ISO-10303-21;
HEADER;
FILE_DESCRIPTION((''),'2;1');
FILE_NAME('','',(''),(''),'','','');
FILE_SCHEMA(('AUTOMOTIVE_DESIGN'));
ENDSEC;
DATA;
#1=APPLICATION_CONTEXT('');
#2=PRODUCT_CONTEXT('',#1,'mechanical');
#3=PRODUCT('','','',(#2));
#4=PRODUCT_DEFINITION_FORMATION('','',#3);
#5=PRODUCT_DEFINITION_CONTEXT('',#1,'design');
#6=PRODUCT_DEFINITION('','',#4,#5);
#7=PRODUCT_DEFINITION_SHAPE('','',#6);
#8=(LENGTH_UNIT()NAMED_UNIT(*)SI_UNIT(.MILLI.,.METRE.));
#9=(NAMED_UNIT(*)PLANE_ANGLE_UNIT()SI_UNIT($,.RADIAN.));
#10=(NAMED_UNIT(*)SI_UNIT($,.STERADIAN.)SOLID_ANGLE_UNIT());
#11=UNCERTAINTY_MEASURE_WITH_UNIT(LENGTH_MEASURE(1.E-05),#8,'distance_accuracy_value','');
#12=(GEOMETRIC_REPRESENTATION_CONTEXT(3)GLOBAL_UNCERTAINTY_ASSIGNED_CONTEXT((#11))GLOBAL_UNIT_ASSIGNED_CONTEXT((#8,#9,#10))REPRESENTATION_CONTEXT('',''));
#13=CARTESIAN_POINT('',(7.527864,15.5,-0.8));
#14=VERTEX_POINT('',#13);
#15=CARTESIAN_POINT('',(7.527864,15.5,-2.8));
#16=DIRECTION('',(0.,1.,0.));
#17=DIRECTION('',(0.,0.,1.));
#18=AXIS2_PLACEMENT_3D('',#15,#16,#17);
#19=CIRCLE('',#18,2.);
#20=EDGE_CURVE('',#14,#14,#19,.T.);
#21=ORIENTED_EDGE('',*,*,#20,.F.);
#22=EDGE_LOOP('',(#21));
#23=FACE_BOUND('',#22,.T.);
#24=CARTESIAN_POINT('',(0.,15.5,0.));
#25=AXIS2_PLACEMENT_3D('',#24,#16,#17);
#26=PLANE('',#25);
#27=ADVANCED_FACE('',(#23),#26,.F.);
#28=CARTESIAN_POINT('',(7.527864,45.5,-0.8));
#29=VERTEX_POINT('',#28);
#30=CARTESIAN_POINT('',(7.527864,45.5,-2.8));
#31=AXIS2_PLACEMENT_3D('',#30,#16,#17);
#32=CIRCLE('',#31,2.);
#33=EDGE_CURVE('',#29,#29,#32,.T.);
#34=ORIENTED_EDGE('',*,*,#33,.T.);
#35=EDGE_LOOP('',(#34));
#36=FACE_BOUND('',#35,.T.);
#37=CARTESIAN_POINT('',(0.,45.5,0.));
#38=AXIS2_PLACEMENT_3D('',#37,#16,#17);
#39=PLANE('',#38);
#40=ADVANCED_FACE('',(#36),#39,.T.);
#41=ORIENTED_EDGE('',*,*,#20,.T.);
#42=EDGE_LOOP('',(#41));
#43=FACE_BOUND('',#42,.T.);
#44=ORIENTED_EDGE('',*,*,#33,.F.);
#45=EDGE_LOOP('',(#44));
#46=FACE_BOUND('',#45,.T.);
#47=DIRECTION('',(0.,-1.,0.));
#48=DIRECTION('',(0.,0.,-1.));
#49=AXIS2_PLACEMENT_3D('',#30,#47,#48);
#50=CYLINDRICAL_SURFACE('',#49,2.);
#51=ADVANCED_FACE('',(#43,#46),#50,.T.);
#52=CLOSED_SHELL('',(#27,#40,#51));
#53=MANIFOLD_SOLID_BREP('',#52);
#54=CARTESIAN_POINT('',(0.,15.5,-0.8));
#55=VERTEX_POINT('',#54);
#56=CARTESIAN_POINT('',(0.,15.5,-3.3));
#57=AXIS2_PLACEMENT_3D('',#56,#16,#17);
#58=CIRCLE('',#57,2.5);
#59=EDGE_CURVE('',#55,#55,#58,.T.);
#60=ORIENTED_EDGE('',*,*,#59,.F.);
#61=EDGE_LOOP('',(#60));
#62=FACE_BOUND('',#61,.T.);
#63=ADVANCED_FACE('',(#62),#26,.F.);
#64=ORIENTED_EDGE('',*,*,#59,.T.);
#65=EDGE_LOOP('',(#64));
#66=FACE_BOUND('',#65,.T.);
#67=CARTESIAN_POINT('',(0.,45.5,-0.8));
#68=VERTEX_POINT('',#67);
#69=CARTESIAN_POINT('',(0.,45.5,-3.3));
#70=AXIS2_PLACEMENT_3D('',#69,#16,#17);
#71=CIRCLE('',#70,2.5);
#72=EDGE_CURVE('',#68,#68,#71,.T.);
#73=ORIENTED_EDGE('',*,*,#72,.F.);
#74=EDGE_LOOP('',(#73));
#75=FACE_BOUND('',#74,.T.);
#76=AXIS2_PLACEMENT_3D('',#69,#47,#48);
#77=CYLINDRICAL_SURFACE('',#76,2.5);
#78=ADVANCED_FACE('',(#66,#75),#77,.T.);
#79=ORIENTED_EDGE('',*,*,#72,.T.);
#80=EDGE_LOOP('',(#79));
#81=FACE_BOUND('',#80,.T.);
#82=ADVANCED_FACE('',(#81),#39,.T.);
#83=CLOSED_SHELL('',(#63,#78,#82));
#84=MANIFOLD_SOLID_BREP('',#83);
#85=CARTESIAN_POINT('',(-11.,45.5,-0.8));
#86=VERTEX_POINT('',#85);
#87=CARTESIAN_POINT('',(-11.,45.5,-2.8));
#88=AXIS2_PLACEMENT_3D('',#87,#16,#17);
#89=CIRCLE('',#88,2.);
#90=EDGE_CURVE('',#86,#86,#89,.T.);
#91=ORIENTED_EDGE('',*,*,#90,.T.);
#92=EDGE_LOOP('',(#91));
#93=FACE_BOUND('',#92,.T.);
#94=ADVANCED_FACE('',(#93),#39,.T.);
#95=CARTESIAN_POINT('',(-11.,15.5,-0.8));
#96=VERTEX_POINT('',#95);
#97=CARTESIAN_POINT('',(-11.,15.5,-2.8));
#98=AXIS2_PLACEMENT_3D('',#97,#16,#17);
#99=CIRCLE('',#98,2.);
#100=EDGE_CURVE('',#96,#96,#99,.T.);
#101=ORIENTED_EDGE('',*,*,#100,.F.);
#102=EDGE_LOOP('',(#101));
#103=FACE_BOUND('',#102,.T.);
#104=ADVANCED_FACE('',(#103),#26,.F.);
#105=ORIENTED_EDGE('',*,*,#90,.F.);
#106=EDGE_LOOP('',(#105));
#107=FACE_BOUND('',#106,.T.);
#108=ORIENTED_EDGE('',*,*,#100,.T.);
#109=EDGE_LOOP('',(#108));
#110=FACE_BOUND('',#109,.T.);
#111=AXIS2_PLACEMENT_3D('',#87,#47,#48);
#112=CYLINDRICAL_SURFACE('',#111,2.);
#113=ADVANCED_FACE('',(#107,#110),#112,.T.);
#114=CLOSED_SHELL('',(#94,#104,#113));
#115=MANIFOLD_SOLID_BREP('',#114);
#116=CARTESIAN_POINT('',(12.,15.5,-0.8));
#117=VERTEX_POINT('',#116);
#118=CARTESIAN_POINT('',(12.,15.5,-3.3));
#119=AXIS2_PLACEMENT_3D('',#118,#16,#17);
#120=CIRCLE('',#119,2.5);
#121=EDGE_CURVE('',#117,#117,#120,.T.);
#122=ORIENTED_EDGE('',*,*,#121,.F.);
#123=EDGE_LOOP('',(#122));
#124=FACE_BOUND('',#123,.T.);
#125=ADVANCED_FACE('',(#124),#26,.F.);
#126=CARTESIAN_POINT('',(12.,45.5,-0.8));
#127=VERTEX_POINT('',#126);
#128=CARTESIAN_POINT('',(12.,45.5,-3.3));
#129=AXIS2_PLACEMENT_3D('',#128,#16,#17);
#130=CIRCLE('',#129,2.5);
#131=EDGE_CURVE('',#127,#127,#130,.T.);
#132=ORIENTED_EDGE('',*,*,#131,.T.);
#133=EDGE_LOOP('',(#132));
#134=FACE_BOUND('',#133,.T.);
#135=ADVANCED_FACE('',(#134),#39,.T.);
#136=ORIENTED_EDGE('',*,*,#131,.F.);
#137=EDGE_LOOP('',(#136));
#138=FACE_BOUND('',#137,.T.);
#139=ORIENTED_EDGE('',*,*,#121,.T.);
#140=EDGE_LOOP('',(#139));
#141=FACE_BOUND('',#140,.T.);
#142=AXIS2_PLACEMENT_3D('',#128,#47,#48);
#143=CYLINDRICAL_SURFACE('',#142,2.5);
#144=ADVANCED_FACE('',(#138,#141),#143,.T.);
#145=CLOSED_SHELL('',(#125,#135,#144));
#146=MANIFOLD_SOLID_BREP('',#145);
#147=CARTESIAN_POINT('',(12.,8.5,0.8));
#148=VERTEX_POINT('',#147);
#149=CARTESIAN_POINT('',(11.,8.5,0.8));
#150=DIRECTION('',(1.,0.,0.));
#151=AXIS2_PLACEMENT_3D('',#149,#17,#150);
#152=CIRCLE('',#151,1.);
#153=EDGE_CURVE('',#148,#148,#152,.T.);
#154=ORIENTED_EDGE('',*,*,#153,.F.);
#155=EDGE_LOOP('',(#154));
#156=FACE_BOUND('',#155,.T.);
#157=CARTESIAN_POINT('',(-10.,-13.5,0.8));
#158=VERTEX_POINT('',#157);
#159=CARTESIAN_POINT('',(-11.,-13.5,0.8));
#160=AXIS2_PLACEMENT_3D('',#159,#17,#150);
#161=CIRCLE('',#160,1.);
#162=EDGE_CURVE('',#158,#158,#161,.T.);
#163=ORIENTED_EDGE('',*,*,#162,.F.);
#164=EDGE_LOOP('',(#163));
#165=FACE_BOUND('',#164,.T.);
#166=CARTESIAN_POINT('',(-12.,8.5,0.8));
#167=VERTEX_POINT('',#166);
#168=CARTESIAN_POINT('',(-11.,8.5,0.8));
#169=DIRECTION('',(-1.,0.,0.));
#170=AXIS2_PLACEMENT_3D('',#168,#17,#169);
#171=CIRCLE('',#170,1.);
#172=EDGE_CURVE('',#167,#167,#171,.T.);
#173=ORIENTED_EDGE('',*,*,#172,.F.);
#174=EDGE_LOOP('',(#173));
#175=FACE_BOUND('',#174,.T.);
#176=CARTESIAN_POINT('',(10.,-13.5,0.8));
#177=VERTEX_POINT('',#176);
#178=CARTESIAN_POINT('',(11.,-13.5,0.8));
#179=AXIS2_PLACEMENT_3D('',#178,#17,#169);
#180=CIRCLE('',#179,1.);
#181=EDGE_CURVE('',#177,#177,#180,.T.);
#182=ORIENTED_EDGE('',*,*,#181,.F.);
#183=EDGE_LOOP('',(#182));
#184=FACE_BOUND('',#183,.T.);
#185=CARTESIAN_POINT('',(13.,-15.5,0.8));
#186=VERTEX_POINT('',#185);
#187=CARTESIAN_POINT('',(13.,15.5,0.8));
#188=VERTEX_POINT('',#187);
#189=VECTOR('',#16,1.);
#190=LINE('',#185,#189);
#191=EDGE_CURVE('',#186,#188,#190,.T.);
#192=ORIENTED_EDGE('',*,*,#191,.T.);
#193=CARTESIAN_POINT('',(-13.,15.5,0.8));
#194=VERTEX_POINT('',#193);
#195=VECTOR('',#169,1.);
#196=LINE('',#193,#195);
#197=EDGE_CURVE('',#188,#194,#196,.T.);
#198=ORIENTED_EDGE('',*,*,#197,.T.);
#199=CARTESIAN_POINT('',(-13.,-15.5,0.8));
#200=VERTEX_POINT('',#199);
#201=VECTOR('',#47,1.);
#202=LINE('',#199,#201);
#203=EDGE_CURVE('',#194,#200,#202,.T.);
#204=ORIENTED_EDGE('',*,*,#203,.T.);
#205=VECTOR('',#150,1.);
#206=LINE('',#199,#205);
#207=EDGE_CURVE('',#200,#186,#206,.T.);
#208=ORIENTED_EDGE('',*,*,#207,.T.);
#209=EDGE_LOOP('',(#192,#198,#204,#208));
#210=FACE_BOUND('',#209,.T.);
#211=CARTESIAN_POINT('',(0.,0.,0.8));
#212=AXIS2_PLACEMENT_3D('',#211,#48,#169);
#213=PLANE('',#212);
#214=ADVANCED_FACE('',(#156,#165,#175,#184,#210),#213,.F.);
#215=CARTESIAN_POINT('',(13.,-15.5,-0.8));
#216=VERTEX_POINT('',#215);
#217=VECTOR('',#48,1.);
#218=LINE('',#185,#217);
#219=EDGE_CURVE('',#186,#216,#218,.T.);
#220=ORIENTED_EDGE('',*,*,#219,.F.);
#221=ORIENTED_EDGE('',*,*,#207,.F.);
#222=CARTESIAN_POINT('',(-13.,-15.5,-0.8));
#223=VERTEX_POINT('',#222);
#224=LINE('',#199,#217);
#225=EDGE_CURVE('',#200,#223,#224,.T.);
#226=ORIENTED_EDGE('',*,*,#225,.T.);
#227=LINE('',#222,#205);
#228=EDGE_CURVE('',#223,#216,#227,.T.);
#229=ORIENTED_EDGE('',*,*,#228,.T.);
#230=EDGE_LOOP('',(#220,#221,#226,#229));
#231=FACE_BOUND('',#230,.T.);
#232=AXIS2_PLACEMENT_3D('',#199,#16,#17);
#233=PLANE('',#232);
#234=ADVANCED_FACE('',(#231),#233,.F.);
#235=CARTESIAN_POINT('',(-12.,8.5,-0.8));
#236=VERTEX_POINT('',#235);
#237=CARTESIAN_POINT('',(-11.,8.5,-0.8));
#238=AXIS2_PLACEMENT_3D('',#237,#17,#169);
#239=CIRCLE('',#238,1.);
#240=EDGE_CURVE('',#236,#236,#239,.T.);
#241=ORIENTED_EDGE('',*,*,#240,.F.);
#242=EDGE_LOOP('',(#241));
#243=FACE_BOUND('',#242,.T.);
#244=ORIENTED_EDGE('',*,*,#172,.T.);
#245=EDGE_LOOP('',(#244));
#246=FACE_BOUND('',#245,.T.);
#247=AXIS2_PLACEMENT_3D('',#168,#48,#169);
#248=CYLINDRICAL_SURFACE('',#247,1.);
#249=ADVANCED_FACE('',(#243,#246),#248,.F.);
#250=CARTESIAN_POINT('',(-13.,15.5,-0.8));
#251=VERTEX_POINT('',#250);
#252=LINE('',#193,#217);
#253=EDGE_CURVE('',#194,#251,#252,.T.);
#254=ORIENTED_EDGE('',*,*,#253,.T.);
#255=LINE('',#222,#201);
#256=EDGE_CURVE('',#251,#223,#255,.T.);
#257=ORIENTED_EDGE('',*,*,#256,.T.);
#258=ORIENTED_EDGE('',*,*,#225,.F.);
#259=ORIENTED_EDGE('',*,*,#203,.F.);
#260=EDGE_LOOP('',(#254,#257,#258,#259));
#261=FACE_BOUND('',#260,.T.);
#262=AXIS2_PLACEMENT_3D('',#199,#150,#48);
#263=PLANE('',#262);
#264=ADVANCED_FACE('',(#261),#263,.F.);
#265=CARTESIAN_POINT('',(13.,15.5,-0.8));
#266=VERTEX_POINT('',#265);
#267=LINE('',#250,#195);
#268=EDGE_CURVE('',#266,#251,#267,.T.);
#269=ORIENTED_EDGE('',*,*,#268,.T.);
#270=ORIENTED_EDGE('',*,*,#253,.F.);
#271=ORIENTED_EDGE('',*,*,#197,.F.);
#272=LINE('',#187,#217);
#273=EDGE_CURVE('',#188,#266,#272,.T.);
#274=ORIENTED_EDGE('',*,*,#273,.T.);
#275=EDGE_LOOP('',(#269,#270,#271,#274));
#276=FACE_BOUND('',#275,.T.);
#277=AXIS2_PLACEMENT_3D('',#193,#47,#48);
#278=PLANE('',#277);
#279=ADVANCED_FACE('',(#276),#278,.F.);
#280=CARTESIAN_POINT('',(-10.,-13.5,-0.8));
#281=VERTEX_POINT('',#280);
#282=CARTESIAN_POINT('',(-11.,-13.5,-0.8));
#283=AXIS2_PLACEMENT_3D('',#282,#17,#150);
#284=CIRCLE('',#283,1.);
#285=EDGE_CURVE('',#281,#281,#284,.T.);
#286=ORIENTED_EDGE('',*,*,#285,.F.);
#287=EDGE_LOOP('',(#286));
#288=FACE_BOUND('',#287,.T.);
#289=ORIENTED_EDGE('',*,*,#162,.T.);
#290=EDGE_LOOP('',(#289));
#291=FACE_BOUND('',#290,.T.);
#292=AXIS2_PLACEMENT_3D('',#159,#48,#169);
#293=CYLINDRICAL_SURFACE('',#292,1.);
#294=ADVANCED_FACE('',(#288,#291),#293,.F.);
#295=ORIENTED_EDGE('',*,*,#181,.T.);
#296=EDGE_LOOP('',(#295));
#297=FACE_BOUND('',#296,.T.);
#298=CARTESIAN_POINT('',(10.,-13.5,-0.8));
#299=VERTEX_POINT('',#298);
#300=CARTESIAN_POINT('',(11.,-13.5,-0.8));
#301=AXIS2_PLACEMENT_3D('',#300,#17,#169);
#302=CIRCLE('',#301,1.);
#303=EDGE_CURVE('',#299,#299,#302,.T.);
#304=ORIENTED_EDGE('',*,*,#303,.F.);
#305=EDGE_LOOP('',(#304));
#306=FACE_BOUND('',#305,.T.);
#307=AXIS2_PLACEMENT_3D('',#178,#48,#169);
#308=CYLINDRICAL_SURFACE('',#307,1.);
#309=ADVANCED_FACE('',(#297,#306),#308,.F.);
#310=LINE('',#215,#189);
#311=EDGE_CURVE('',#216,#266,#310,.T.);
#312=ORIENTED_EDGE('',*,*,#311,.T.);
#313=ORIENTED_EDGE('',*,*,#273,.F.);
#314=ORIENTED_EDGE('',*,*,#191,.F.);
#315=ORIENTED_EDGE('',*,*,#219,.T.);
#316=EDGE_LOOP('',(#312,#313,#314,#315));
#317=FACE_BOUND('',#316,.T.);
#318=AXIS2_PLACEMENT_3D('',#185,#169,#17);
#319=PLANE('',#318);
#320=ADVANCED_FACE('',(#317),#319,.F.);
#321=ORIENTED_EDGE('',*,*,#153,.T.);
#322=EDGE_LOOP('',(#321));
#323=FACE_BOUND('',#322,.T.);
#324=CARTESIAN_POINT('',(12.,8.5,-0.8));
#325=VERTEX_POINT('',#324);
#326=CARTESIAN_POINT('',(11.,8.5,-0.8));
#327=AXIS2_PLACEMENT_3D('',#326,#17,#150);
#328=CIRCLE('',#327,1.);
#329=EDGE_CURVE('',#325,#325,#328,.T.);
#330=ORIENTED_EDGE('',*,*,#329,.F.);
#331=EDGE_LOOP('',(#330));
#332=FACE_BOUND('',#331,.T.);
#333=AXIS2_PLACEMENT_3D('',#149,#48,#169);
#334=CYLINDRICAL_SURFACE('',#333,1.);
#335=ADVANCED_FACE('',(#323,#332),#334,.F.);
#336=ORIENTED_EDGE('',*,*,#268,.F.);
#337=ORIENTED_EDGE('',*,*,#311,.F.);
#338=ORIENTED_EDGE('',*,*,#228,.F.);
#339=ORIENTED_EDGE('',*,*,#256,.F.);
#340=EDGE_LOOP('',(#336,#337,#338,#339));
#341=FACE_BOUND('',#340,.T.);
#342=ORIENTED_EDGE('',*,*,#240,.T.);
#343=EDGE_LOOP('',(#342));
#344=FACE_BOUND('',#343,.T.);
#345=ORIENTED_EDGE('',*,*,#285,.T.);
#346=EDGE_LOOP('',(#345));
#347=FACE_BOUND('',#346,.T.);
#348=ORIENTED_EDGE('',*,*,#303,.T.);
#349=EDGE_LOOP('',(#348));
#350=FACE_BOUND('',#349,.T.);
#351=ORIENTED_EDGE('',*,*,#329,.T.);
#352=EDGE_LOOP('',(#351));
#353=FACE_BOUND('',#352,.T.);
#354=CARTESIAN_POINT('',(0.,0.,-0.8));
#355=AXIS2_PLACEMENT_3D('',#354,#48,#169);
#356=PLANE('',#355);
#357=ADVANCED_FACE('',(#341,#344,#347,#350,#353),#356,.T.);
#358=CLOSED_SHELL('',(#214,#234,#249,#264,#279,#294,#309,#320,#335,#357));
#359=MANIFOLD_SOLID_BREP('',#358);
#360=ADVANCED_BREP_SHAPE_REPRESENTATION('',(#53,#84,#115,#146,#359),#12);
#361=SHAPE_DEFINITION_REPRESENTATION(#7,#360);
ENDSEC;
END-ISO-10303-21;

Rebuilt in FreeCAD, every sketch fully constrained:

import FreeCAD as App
import Part
import Sketcher

V = App.Vector


def add_polygon(sketch, points):
    """Adds a closed chain of lines whose ends are joined by coincident constraints."""
    first, n = sketch.GeometryCount, len(points)
    for a, b in zip(points, points[1:] + points[:1]):
        sketch.addGeometry(Part.LineSegment(App.Vector(*a, 0), App.Vector(*b, 0)), False)
    for i in range(n):
        sketch.addConstraint(Sketcher.Constraint("Coincident", first + i, 2, first + (i + 1) % n, 1))

doc = App.newDocument("Part")
body = doc.addObject("PartDesign::Body", "Body")

sketch1 = body.newObject("Sketcher::SketchObject", "Sketch")
sketch1.AttachmentSupport = (doc.getObject("XY_Plane"), [""])
sketch1.MapMode = "FlatFace"
add_polygon(sketch1, [(-13, 15.5), (-13, -15.5), (13, -15.5), (13, 15.5)])
sketch1.addGeometry(Part.Circle(V(-11, -13.5, 0), V(0, 0, 1), 1), False)
sketch1.addGeometry(Part.Circle(V(11, -13.5, 0), V(0, 0, 1), 1), False)
sketch1.addGeometry(Part.Circle(V(-11, 8.5, 0), V(0, 0, 1), 1), False)
sketch1.addGeometry(Part.Circle(V(11, 8.5, 0), V(0, 0, 1), 1), False)
sketch1.addConstraint([
    Sketcher.Constraint("Vertical", 0),
    Sketcher.Constraint("Horizontal", 1),
    Sketcher.Constraint("Vertical", 2),
    Sketcher.Constraint("Horizontal", 3),
    Sketcher.Constraint("Equal", 4, 5),
    Sketcher.Constraint("Equal", 5, 6),
    Sketcher.Constraint("Equal", 6, 7),
    Sketcher.Constraint("Symmetric", 0, 2, 2, 2, -1, 1),
    Sketcher.Constraint("Symmetric", 4, 3, 5, 3, -2),
    Sketcher.Constraint("Symmetric", 6, 3, 7, 3, -2),
    Sketcher.Constraint("Vertical", 4, 3, 6, 3),
    Sketcher.Constraint("Diameter", 4, 2.0),
    Sketcher.Constraint("DistanceX", 1, 1, 1, 2, 26.0),
    Sketcher.Constraint("DistanceY", 0, 2, 0, 1, 31.0),
    Sketcher.Constraint("DistanceX", 4, 3, -1, 1, 11.0),
    Sketcher.Constraint("DistanceY", 4, 3, 6, 3, 22.0),
    Sketcher.Constraint("DistanceY", 0, 2, 4, 3, 2.0),
])
pad1 = body.newObject("PartDesign::Pad", "Pad")
pad1.Profile = sketch1
pad1.Length = 1.6
pad1.Midplane = True
body2 = doc.addObject("PartDesign::Body", "Body001")

sketch2 = body2.newObject("Sketcher::SketchObject", "Sketch001")
sketch2.AttachmentSupport = (doc.getObject("XZ_Plane001"), [""])
sketch2.MapMode = "FlatFace"
sketch2.AttachmentOffset = App.Placement(V(0, 0, -15.5), App.Rotation())
sketch2.addGeometry(Part.Circle(V(-11, -2.8, 0), V(0, 0, 1), 2), False)
sketch2.addConstraint([
    Sketcher.Constraint("Diameter", 0, 4.0),
    Sketcher.Constraint("DistanceX", 0, 3, -1, 1, 11.0),
    Sketcher.Constraint("DistanceY", 0, 3, -1, 1, 2.8),
])
pad2 = body2.newObject("PartDesign::Pad", "Pad001")
pad2.Profile = sketch2
pad2.Length = 30
pad2.Reversed = True
body3 = doc.addObject("PartDesign::Body", "Body002")

sketch3 = body3.newObject("Sketcher::SketchObject", "Sketch002")
sketch3.AttachmentSupport = (doc.getObject("XZ_Plane002"), [""])
sketch3.MapMode = "FlatFace"
sketch3.AttachmentOffset = App.Placement(V(0, 0, -15.5), App.Rotation())
sketch3.addGeometry(Part.Circle(V(0, -3.3, 0), V(0, 0, 1), 2.5), False)
sketch3.addConstraint([
    Sketcher.Constraint("PointOnObject", 0, 3, -2),
    Sketcher.Constraint("Diameter", 0, 5.0),
    Sketcher.Constraint("DistanceY", 0, 3, -1, 1, 3.3),
])
pad3 = body3.newObject("PartDesign::Pad", "Pad002")
pad3.Profile = sketch3
pad3.Length = 30
pad3.Reversed = True
body4 = doc.addObject("PartDesign::Body", "Body003")

sketch4 = body4.newObject("Sketcher::SketchObject", "Sketch003")
sketch4.AttachmentSupport = (doc.getObject("XZ_Plane003"), [""])
sketch4.MapMode = "FlatFace"
sketch4.AttachmentOffset = App.Placement(V(0, 0, -15.5), App.Rotation())
sketch4.addGeometry(Part.Circle(V(7.527864, -2.8, 0), V(0, 0, 1), 2), False)
sketch4.addConstraint([
    Sketcher.Constraint("Diameter", 0, 4.0),
    Sketcher.Constraint("DistanceY", 0, 3, -1, 1, 2.8),
    Sketcher.Constraint("DistanceX", -1, 1, 0, 3, 7.527864),
])
pad4 = body4.newObject("PartDesign::Pad", "Pad003")
pad4.Profile = sketch4
pad4.Length = 30
pad4.Reversed = True
body5 = doc.addObject("PartDesign::Body", "Body004")

sketch5 = body5.newObject("Sketcher::SketchObject", "Sketch004")
sketch5.AttachmentSupport = (doc.getObject("XZ_Plane004"), [""])
sketch5.MapMode = "FlatFace"
sketch5.AttachmentOffset = App.Placement(V(0, 0, -15.5), App.Rotation())
sketch5.addGeometry(Part.Circle(V(12, -3.3, 0), V(0, 0, 1), 2.5), False)
sketch5.addConstraint([
    Sketcher.Constraint("Diameter", 0, 5.0),
    Sketcher.Constraint("DistanceX", -1, 1, 0, 3, 12.0),
    Sketcher.Constraint("DistanceY", 0, 3, -1, 1, 3.3),
])
pad5 = body5.newObject("PartDesign::Pad", "Pad004")
pad5.Profile = sketch5
pad5.Length = 30
pad5.Reversed = True

doc.recompute()
